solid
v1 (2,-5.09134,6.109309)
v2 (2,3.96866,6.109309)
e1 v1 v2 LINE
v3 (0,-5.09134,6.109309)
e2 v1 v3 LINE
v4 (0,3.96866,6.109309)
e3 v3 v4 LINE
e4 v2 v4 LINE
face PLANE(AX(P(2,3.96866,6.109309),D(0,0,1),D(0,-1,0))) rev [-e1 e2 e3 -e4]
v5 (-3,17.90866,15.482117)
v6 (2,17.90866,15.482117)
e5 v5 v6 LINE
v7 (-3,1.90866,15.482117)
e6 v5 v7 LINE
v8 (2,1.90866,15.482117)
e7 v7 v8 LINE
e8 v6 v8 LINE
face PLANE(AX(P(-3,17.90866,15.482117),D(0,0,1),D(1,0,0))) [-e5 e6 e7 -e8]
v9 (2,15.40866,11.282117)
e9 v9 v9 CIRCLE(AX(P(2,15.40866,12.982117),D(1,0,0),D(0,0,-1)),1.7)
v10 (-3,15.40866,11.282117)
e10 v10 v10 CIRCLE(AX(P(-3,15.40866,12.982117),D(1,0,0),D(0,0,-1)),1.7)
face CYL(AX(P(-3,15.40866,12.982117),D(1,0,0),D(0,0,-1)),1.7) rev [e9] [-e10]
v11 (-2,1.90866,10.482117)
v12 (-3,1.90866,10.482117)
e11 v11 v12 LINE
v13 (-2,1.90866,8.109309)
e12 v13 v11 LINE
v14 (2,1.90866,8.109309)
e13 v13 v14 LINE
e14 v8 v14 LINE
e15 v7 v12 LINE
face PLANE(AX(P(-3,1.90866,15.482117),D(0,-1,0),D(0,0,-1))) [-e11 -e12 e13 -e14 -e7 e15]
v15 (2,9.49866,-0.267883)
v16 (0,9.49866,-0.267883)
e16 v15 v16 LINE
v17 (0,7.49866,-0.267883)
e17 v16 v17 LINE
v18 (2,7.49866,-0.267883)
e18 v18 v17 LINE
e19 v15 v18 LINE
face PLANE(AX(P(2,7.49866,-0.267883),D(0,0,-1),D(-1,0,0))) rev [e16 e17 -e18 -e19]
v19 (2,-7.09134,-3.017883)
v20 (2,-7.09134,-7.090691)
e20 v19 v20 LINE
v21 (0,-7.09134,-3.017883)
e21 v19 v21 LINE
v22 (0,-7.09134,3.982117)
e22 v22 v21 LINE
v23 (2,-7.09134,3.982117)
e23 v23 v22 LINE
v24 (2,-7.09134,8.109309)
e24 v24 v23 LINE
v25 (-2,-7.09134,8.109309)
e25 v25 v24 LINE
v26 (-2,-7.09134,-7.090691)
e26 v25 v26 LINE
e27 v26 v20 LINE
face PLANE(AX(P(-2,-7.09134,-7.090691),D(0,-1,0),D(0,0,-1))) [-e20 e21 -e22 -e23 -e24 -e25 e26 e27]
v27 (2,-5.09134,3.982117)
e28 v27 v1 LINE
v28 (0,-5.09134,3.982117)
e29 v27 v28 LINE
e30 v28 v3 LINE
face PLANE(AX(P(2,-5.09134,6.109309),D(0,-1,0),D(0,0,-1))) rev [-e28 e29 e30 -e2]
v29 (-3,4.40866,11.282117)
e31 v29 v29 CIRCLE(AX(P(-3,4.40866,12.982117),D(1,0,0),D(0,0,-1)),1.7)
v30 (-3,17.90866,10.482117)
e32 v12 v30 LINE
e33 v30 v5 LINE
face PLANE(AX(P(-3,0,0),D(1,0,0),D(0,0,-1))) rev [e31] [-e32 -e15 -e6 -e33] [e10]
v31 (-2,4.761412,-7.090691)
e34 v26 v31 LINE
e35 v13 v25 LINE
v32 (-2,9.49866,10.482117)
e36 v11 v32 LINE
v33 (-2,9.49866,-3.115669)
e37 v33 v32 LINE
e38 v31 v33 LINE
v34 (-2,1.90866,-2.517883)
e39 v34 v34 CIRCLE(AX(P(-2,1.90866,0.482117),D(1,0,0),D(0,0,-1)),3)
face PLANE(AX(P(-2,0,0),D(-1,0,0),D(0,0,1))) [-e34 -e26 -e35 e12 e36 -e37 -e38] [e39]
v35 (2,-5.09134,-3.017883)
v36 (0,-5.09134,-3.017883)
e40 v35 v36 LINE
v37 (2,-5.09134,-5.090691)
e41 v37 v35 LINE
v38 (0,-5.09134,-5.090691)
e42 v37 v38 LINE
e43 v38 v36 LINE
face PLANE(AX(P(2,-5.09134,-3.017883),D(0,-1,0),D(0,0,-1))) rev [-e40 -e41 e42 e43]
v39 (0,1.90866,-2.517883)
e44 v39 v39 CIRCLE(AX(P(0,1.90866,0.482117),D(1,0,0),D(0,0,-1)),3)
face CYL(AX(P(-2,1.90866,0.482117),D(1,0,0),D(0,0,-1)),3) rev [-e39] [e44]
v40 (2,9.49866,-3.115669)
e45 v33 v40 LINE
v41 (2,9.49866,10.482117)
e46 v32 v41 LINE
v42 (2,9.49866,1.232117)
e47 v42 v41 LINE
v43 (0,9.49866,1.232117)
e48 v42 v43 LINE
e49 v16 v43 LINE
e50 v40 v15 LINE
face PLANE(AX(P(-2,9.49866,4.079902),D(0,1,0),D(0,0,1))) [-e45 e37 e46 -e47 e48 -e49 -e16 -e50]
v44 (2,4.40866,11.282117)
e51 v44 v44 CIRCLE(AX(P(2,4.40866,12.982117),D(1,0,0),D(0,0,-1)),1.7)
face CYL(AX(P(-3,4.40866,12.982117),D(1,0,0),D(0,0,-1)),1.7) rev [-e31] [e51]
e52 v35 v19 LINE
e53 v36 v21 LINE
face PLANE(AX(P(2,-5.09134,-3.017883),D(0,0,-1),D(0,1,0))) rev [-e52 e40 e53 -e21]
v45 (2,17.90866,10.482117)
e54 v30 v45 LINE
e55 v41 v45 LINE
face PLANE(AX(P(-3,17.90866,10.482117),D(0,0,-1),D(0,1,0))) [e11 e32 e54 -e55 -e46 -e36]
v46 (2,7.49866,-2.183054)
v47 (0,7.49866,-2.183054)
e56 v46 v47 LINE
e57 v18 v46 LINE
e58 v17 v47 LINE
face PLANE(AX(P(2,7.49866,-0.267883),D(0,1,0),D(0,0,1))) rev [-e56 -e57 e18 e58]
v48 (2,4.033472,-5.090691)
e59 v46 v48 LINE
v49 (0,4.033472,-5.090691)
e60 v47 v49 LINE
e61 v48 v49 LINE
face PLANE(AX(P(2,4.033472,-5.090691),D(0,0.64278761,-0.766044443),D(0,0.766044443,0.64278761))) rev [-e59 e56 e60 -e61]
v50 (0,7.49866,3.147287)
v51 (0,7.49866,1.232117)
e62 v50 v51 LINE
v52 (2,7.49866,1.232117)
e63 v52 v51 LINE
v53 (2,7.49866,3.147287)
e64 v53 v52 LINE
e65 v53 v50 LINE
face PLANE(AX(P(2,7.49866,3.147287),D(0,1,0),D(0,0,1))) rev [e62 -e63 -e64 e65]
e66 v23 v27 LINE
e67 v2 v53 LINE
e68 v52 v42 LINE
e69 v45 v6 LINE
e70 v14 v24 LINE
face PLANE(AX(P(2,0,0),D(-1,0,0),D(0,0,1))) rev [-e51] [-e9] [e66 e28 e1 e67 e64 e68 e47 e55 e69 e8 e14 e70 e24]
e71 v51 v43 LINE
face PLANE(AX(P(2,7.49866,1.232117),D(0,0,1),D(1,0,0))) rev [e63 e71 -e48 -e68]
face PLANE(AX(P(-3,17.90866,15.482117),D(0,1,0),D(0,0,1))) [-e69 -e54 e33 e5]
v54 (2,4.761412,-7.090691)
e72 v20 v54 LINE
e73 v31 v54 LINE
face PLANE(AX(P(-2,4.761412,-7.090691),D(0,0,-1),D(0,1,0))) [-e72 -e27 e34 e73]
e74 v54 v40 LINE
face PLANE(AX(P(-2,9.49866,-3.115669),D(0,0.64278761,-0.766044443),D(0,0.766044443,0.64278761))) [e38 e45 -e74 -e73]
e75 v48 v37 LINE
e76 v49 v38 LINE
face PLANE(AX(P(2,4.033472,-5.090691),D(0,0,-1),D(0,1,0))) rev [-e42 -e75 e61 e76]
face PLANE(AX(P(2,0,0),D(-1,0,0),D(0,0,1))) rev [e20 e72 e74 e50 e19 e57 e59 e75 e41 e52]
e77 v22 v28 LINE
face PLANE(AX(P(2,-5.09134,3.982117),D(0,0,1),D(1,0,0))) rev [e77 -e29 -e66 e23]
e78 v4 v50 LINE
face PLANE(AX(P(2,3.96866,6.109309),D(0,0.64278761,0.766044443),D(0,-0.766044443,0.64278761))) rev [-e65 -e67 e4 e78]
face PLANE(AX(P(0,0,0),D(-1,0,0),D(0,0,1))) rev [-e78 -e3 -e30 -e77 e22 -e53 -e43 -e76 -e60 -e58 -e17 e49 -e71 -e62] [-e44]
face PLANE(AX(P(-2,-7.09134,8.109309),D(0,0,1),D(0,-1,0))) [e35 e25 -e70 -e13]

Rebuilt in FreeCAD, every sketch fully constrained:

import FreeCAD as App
import Part
import Sketcher
from FreeCAD import Vector
Q = App.Units.Quantity


def add_polygon(sketch, points):
    """Adds a closed chain of lines whose ends are joined by coincident constraints."""
    first, n = sketch.GeometryCount, len(points)
    for a, b in zip(points, points[1:] + points[:1]):
        sketch.addGeometry(Part.LineSegment(App.Vector(*a, 0), App.Vector(*b, 0)), False)
    for i in range(n):
        sketch.addConstraint(Sketcher.Constraint("Coincident", first + i, 2, first + (i + 1) % n, 1))

doc = App.newDocument("Part")
body = doc.addObject("PartDesign::Body", "Body")

# Sketch on YZ plane
sketch1 = body.newObject("Sketcher::SketchObject", "Sketch")
sketch1.AttachmentSupport = (doc.getObject("YZ_Plane"), [""])
sketch1.MapMode = "FlatFace"
add_polygon(sketch1, [(5, 8), (-7, 8), (-7, -7), (5, -7), (9, -3), (9, 4)])  # lines 0-5
sketch1.addConstraint([
    Sketcher.Constraint("Horizontal", 0),
    Sketcher.Constraint("Vertical", 1),
    Sketcher.Constraint("Horizontal", 2),
    Sketcher.Constraint("Vertical", 4),
    Sketcher.Constraint("Angle", 3, Q("40 deg")),
    Sketcher.Constraint("Angle", 5, Q("140 deg")),
    Sketcher.Constraint("DistanceY", 1, 2, 1, 1, Q("15.2 mm")),
    Sketcher.Constraint("DistanceX", 1, 2, 3, 2, Q("16.59 mm")),
    Sketcher.Constraint("DistanceX", 0, 2, 0, 1, Q("11.78794 mm")),
    Sketcher.Constraint("DistanceY", 4, 1, 4, 2, Q("7.195571 mm")),
    Sketcher.Constraint("DistanceX", -1, 1, 5, 2, Q("4.6966 mm")),
    Sketcher.Constraint("DistanceY", -1, 1, 0, 2, Q("8.109309 mm")),
])
pad1 = body.newObject("PartDesign::Pad", "Pad")
pad1.Profile = sketch1
pad1.Length = 2
pad1.Reversed = True

# Sketch on YZ plane
sketch2 = body.newObject("Sketcher::SketchObject", "Sketch001")
sketch2.AttachmentSupport = (doc.getObject("YZ_Plane"), [""])
sketch2.MapMode = "FlatFace"
add_polygon(sketch2, [(4, 6.1), (7.5, 3.1), (7.5, 1.2), (9.5, 1.2), (9.5, 4.1), (4.7, 8.1), (-7.1, 8.1), (-7.1, 4), (-5.1, 4), (-5.1, 6.1)])  # lines 0-9
add_polygon(sketch2, [(4, -5.1), (-5.1, -5.1), (-5.1, -3), (-7.1, -3), (-7.1, -7.1), (4.8, -7.1), (9.5, -3.1), (9.5, -0.3), (7.5, -0.3), (7.5, -2.2)])  # lines 10-19
sketch2.addConstraint([
    Sketcher.Constraint("Vertical", 1),
    Sketcher.Constraint("Horizontal", 2),
    Sketcher.Constraint("Vertical", 3),
    Sketcher.Constraint("Horizontal", 5),
    Sketcher.Constraint("Vertical", 6),
    Sketcher.Constraint("Horizontal", 7),
    Sketcher.Constraint("Vertical", 8),
    Sketcher.Constraint("Horizontal", 9),
    Sketcher.Constraint("Horizontal", 10),
    Sketcher.Constraint("Vertical", 11),
    Sketcher.Constraint("Horizontal", 12),
    Sketcher.Constraint("Vertical", 13),
    Sketcher.Constraint("Horizontal", 14),
    Sketcher.Constraint("Vertical", 16),
    Sketcher.Constraint("Horizontal", 17),
    Sketcher.Constraint("Vertical", 18),
    Sketcher.Constraint("Parallel", 0, 4),
    Sketcher.Constraint("Parallel", 15, 19),
    Sketcher.Constraint("Vertical", 8, 2, 10, 2),
    Sketcher.Constraint("Vertical", 6, 2, 12, 2),
    Sketcher.Constraint("Vertical", 3, 2, 15, 2),
    Sketcher.Constraint("Vertical", 1, 2, 17, 2),
    Sketcher.Constraint("Equal", 2, 7),
    Sketcher.Constraint("Equal", 3, 16),
    Sketcher.Constraint("Equal", 1, 18),
    Sketcher.Constraint("DistanceX", 2, 1, 2, 2, Q("2 mm")),
    Sketcher.Constraint("Angle", 0, Q("-40 deg")),
    Sketcher.Constraint("Angle", 15, Q("40 deg")),
    Sketcher.Constraint("DistanceY", 8, 2, 5, 2, Q("2 mm")),
    Sketcher.Constraint("DistanceY", 11, 2, 7, 2, Q("7 mm")),
    Sketcher.Constraint("DistanceY", 13, 2, 10, 2, Q("2 mm")),
    Sketcher.Constraint("DistanceX", 9, 1, 9, 2, Q("9.06 mm")),
    Sketcher.Constraint("DistanceY", 10, 2, 8, 2, Q("11.2 mm")),
    Sketcher.Constraint("DistanceY", 16, 2, 2, 2, Q("1.5 mm")),
    Sketcher.Constraint("DistanceX", 5, 2, 0, 2, Q("14.59 mm")),
    Sketcher.Constraint("DistanceY", 1, 2, 6, 2, Q("2.75 mm")),
    Sketcher.Constraint("DistanceX", 5, 2, 5, 1, Q("11.78794 mm")),
    Sketcher.Constraint("DistanceY", 1, 2, 1, 1, Q("1.91517 mm")),
    Sketcher.Constraint("DistanceX", -1, 1, 4, 2, Q("4.6966 mm")),
    Sketcher.Constraint("DistanceY", -1, 1, 4, 2, Q("8.109309 mm")),
])
pad2 = body.newObject("PartDesign::Pad", "Pad001")
pad2.Profile = sketch2
pad2.Length = 2

# Sketch on YZ plane
sketch3 = body.newObject("Sketcher::SketchObject", "Sketch002")
sketch3.AttachmentSupport = (doc.getObject("YZ_Plane"), [""])
sketch3.MapMode = "FlatFace"
sketch3.addGeometry(Part.Circle(Vector(1.9, 0.5, 0), Vector(0, 0, 1), 3), False)
sketch3.addConstraint([
    Sketcher.Constraint("Diameter", 0, Q("6 mm")),
    Sketcher.Constraint("DistanceX", -1, 1, 0, 3, Q("1.90866 mm")),
    Sketcher.Constraint("DistanceY", -1, 1, 0, 3, Q("0.482117 mm")),
])
pocket1 = body.newObject("PartDesign::Pocket", "Pocket")
pocket1.Profile = sketch3
pocket1.Length = 2

# Sketch on YZ plane
sketch4 = body.newObject("Sketcher::SketchObject", "Sketch003")
sketch4.AttachmentSupport = (doc.getObject("YZ_Plane"), [""])
sketch4.MapMode = "FlatFace"
sketch4.AttachmentOffset = App.Placement(Vector(0, 0, 2), App.Rotation())
add_polygon(sketch4, [(1.9, 15.5), (1.9, 8.1), (4.7, 8.1), (9.5, 4.1), (9.5, 10.5), (17.9, 10.5), (17.9, 15.5)])  # lines 0-6
sketch4.addGeometry(Part.Circle(Vector(4.4, 13, 0), Vector(0, 0, 1), 1.7), False)  # 7
sketch4.addGeometry(Part.Circle(Vector(15.4, 13, 0), Vector(0, 0, 1), 1.7), False)  # 8
sketch4.addConstraint([
    Sketcher.Constraint("Vertical", 0),
    Sketcher.Constraint("Horizontal", 1),
    Sketcher.Constraint("Vertical", 3),
    Sketcher.Constraint("Horizontal", 4),
    Sketcher.Constraint("Vertical", 5),
    Sketcher.Constraint("Horizontal", 6),
    Sketcher.Constraint("Equal", 7, 8),
    Sketcher.Constraint("Horizontal", 7, 3, 8, 3),
    Sketcher.Constraint("Diameter", 7, Q("3.4 mm")),
    Sketcher.Constraint("DistanceX", 6, 2, 6, 1, Q("16 mm")),
    Sketcher.Constraint("DistanceY", 5, 1, 5, 2, Q("5 mm")),
    Sketcher.Constraint("Angle", 2, Q("-40 deg")),
    Sketcher.Constraint("DistanceX", 7, 3, 8, 3, Q("11 mm")),
    Sketcher.Constraint("DistanceX", 4, 1, 4, 2, Q("8.41 mm")),
    Sketcher.Constraint("DistanceX", 0, 2, 7, 3, Q("2.5 mm")),
    Sketcher.Constraint("DistanceY", 3, 2, 7, 3, Q("2.5 mm")),
    Sketcher.Constraint("DistanceX", 1, 1, 1, 2, Q("2.78794 mm")),
    Sketcher.Constraint("DistanceY", 0, 2, 0, 1, Q("7.372808 mm")),
    Sketcher.Constraint("DistanceX", -1, 1, 1, 2, Q("4.6966 mm")),
    Sketcher.Constraint("DistanceY", -1, 1, 0, 2, Q("8.109309 mm")),
])
pad3 = body.newObject("PartDesign::Pad", "Pad002")
pad3.Profile = sketch4
pad3.Length = 5
pad3.Reversed = True

# Sketch on YZ plane
sketch5 = body.newObject("Sketcher::SketchObject", "Sketch004")
sketch5.AttachmentSupport = (doc.getObject("YZ_Plane"), [""])
sketch5.MapMode = "FlatFace"
sketch5.AttachmentOffset = App.Placement(Vector(0, 0, -3), App.Rotation())
add_polygon(sketch5, [(1.9, 10.5), (9.5, 10.5), (9.5, 4.1), (4.7, 8.1), (1.9, 8.1)])  # lines 0-4
sketch5.addConstraint([
    Sketcher.Constraint("Horizontal", 0),
    Sketcher.Constraint("Vertical", 1),
    Sketcher.Constraint("Horizontal", 3),
    Sketcher.Constraint("Vertical", 4),
    Sketcher.Constraint("Angle", 2, Q("140 deg")),
    Sketcher.Constraint("DistanceX", 0, 1, 0, 2, Q("7.59 mm")),
    Sketcher.Constraint("DistanceX", 3, 2, 3, 1, Q("2.78794 mm")),
    Sketcher.Constraint("DistanceY", 4, 1, 4, 2, Q("2.372808 mm")),
    Sketcher.Constraint("DistanceX", -1, 1, 2, 2, Q("4.6966 mm")),
    Sketcher.Constraint("DistanceY", -1, 1, 2, 2, Q("8.109309 mm")),
])
pocket2 = body.newObject("PartDesign::Pocket", "Pocket001")
pocket2.Profile = sketch5
pocket2.Length = 1
pocket2.Reversed = True

doc.recompute()
